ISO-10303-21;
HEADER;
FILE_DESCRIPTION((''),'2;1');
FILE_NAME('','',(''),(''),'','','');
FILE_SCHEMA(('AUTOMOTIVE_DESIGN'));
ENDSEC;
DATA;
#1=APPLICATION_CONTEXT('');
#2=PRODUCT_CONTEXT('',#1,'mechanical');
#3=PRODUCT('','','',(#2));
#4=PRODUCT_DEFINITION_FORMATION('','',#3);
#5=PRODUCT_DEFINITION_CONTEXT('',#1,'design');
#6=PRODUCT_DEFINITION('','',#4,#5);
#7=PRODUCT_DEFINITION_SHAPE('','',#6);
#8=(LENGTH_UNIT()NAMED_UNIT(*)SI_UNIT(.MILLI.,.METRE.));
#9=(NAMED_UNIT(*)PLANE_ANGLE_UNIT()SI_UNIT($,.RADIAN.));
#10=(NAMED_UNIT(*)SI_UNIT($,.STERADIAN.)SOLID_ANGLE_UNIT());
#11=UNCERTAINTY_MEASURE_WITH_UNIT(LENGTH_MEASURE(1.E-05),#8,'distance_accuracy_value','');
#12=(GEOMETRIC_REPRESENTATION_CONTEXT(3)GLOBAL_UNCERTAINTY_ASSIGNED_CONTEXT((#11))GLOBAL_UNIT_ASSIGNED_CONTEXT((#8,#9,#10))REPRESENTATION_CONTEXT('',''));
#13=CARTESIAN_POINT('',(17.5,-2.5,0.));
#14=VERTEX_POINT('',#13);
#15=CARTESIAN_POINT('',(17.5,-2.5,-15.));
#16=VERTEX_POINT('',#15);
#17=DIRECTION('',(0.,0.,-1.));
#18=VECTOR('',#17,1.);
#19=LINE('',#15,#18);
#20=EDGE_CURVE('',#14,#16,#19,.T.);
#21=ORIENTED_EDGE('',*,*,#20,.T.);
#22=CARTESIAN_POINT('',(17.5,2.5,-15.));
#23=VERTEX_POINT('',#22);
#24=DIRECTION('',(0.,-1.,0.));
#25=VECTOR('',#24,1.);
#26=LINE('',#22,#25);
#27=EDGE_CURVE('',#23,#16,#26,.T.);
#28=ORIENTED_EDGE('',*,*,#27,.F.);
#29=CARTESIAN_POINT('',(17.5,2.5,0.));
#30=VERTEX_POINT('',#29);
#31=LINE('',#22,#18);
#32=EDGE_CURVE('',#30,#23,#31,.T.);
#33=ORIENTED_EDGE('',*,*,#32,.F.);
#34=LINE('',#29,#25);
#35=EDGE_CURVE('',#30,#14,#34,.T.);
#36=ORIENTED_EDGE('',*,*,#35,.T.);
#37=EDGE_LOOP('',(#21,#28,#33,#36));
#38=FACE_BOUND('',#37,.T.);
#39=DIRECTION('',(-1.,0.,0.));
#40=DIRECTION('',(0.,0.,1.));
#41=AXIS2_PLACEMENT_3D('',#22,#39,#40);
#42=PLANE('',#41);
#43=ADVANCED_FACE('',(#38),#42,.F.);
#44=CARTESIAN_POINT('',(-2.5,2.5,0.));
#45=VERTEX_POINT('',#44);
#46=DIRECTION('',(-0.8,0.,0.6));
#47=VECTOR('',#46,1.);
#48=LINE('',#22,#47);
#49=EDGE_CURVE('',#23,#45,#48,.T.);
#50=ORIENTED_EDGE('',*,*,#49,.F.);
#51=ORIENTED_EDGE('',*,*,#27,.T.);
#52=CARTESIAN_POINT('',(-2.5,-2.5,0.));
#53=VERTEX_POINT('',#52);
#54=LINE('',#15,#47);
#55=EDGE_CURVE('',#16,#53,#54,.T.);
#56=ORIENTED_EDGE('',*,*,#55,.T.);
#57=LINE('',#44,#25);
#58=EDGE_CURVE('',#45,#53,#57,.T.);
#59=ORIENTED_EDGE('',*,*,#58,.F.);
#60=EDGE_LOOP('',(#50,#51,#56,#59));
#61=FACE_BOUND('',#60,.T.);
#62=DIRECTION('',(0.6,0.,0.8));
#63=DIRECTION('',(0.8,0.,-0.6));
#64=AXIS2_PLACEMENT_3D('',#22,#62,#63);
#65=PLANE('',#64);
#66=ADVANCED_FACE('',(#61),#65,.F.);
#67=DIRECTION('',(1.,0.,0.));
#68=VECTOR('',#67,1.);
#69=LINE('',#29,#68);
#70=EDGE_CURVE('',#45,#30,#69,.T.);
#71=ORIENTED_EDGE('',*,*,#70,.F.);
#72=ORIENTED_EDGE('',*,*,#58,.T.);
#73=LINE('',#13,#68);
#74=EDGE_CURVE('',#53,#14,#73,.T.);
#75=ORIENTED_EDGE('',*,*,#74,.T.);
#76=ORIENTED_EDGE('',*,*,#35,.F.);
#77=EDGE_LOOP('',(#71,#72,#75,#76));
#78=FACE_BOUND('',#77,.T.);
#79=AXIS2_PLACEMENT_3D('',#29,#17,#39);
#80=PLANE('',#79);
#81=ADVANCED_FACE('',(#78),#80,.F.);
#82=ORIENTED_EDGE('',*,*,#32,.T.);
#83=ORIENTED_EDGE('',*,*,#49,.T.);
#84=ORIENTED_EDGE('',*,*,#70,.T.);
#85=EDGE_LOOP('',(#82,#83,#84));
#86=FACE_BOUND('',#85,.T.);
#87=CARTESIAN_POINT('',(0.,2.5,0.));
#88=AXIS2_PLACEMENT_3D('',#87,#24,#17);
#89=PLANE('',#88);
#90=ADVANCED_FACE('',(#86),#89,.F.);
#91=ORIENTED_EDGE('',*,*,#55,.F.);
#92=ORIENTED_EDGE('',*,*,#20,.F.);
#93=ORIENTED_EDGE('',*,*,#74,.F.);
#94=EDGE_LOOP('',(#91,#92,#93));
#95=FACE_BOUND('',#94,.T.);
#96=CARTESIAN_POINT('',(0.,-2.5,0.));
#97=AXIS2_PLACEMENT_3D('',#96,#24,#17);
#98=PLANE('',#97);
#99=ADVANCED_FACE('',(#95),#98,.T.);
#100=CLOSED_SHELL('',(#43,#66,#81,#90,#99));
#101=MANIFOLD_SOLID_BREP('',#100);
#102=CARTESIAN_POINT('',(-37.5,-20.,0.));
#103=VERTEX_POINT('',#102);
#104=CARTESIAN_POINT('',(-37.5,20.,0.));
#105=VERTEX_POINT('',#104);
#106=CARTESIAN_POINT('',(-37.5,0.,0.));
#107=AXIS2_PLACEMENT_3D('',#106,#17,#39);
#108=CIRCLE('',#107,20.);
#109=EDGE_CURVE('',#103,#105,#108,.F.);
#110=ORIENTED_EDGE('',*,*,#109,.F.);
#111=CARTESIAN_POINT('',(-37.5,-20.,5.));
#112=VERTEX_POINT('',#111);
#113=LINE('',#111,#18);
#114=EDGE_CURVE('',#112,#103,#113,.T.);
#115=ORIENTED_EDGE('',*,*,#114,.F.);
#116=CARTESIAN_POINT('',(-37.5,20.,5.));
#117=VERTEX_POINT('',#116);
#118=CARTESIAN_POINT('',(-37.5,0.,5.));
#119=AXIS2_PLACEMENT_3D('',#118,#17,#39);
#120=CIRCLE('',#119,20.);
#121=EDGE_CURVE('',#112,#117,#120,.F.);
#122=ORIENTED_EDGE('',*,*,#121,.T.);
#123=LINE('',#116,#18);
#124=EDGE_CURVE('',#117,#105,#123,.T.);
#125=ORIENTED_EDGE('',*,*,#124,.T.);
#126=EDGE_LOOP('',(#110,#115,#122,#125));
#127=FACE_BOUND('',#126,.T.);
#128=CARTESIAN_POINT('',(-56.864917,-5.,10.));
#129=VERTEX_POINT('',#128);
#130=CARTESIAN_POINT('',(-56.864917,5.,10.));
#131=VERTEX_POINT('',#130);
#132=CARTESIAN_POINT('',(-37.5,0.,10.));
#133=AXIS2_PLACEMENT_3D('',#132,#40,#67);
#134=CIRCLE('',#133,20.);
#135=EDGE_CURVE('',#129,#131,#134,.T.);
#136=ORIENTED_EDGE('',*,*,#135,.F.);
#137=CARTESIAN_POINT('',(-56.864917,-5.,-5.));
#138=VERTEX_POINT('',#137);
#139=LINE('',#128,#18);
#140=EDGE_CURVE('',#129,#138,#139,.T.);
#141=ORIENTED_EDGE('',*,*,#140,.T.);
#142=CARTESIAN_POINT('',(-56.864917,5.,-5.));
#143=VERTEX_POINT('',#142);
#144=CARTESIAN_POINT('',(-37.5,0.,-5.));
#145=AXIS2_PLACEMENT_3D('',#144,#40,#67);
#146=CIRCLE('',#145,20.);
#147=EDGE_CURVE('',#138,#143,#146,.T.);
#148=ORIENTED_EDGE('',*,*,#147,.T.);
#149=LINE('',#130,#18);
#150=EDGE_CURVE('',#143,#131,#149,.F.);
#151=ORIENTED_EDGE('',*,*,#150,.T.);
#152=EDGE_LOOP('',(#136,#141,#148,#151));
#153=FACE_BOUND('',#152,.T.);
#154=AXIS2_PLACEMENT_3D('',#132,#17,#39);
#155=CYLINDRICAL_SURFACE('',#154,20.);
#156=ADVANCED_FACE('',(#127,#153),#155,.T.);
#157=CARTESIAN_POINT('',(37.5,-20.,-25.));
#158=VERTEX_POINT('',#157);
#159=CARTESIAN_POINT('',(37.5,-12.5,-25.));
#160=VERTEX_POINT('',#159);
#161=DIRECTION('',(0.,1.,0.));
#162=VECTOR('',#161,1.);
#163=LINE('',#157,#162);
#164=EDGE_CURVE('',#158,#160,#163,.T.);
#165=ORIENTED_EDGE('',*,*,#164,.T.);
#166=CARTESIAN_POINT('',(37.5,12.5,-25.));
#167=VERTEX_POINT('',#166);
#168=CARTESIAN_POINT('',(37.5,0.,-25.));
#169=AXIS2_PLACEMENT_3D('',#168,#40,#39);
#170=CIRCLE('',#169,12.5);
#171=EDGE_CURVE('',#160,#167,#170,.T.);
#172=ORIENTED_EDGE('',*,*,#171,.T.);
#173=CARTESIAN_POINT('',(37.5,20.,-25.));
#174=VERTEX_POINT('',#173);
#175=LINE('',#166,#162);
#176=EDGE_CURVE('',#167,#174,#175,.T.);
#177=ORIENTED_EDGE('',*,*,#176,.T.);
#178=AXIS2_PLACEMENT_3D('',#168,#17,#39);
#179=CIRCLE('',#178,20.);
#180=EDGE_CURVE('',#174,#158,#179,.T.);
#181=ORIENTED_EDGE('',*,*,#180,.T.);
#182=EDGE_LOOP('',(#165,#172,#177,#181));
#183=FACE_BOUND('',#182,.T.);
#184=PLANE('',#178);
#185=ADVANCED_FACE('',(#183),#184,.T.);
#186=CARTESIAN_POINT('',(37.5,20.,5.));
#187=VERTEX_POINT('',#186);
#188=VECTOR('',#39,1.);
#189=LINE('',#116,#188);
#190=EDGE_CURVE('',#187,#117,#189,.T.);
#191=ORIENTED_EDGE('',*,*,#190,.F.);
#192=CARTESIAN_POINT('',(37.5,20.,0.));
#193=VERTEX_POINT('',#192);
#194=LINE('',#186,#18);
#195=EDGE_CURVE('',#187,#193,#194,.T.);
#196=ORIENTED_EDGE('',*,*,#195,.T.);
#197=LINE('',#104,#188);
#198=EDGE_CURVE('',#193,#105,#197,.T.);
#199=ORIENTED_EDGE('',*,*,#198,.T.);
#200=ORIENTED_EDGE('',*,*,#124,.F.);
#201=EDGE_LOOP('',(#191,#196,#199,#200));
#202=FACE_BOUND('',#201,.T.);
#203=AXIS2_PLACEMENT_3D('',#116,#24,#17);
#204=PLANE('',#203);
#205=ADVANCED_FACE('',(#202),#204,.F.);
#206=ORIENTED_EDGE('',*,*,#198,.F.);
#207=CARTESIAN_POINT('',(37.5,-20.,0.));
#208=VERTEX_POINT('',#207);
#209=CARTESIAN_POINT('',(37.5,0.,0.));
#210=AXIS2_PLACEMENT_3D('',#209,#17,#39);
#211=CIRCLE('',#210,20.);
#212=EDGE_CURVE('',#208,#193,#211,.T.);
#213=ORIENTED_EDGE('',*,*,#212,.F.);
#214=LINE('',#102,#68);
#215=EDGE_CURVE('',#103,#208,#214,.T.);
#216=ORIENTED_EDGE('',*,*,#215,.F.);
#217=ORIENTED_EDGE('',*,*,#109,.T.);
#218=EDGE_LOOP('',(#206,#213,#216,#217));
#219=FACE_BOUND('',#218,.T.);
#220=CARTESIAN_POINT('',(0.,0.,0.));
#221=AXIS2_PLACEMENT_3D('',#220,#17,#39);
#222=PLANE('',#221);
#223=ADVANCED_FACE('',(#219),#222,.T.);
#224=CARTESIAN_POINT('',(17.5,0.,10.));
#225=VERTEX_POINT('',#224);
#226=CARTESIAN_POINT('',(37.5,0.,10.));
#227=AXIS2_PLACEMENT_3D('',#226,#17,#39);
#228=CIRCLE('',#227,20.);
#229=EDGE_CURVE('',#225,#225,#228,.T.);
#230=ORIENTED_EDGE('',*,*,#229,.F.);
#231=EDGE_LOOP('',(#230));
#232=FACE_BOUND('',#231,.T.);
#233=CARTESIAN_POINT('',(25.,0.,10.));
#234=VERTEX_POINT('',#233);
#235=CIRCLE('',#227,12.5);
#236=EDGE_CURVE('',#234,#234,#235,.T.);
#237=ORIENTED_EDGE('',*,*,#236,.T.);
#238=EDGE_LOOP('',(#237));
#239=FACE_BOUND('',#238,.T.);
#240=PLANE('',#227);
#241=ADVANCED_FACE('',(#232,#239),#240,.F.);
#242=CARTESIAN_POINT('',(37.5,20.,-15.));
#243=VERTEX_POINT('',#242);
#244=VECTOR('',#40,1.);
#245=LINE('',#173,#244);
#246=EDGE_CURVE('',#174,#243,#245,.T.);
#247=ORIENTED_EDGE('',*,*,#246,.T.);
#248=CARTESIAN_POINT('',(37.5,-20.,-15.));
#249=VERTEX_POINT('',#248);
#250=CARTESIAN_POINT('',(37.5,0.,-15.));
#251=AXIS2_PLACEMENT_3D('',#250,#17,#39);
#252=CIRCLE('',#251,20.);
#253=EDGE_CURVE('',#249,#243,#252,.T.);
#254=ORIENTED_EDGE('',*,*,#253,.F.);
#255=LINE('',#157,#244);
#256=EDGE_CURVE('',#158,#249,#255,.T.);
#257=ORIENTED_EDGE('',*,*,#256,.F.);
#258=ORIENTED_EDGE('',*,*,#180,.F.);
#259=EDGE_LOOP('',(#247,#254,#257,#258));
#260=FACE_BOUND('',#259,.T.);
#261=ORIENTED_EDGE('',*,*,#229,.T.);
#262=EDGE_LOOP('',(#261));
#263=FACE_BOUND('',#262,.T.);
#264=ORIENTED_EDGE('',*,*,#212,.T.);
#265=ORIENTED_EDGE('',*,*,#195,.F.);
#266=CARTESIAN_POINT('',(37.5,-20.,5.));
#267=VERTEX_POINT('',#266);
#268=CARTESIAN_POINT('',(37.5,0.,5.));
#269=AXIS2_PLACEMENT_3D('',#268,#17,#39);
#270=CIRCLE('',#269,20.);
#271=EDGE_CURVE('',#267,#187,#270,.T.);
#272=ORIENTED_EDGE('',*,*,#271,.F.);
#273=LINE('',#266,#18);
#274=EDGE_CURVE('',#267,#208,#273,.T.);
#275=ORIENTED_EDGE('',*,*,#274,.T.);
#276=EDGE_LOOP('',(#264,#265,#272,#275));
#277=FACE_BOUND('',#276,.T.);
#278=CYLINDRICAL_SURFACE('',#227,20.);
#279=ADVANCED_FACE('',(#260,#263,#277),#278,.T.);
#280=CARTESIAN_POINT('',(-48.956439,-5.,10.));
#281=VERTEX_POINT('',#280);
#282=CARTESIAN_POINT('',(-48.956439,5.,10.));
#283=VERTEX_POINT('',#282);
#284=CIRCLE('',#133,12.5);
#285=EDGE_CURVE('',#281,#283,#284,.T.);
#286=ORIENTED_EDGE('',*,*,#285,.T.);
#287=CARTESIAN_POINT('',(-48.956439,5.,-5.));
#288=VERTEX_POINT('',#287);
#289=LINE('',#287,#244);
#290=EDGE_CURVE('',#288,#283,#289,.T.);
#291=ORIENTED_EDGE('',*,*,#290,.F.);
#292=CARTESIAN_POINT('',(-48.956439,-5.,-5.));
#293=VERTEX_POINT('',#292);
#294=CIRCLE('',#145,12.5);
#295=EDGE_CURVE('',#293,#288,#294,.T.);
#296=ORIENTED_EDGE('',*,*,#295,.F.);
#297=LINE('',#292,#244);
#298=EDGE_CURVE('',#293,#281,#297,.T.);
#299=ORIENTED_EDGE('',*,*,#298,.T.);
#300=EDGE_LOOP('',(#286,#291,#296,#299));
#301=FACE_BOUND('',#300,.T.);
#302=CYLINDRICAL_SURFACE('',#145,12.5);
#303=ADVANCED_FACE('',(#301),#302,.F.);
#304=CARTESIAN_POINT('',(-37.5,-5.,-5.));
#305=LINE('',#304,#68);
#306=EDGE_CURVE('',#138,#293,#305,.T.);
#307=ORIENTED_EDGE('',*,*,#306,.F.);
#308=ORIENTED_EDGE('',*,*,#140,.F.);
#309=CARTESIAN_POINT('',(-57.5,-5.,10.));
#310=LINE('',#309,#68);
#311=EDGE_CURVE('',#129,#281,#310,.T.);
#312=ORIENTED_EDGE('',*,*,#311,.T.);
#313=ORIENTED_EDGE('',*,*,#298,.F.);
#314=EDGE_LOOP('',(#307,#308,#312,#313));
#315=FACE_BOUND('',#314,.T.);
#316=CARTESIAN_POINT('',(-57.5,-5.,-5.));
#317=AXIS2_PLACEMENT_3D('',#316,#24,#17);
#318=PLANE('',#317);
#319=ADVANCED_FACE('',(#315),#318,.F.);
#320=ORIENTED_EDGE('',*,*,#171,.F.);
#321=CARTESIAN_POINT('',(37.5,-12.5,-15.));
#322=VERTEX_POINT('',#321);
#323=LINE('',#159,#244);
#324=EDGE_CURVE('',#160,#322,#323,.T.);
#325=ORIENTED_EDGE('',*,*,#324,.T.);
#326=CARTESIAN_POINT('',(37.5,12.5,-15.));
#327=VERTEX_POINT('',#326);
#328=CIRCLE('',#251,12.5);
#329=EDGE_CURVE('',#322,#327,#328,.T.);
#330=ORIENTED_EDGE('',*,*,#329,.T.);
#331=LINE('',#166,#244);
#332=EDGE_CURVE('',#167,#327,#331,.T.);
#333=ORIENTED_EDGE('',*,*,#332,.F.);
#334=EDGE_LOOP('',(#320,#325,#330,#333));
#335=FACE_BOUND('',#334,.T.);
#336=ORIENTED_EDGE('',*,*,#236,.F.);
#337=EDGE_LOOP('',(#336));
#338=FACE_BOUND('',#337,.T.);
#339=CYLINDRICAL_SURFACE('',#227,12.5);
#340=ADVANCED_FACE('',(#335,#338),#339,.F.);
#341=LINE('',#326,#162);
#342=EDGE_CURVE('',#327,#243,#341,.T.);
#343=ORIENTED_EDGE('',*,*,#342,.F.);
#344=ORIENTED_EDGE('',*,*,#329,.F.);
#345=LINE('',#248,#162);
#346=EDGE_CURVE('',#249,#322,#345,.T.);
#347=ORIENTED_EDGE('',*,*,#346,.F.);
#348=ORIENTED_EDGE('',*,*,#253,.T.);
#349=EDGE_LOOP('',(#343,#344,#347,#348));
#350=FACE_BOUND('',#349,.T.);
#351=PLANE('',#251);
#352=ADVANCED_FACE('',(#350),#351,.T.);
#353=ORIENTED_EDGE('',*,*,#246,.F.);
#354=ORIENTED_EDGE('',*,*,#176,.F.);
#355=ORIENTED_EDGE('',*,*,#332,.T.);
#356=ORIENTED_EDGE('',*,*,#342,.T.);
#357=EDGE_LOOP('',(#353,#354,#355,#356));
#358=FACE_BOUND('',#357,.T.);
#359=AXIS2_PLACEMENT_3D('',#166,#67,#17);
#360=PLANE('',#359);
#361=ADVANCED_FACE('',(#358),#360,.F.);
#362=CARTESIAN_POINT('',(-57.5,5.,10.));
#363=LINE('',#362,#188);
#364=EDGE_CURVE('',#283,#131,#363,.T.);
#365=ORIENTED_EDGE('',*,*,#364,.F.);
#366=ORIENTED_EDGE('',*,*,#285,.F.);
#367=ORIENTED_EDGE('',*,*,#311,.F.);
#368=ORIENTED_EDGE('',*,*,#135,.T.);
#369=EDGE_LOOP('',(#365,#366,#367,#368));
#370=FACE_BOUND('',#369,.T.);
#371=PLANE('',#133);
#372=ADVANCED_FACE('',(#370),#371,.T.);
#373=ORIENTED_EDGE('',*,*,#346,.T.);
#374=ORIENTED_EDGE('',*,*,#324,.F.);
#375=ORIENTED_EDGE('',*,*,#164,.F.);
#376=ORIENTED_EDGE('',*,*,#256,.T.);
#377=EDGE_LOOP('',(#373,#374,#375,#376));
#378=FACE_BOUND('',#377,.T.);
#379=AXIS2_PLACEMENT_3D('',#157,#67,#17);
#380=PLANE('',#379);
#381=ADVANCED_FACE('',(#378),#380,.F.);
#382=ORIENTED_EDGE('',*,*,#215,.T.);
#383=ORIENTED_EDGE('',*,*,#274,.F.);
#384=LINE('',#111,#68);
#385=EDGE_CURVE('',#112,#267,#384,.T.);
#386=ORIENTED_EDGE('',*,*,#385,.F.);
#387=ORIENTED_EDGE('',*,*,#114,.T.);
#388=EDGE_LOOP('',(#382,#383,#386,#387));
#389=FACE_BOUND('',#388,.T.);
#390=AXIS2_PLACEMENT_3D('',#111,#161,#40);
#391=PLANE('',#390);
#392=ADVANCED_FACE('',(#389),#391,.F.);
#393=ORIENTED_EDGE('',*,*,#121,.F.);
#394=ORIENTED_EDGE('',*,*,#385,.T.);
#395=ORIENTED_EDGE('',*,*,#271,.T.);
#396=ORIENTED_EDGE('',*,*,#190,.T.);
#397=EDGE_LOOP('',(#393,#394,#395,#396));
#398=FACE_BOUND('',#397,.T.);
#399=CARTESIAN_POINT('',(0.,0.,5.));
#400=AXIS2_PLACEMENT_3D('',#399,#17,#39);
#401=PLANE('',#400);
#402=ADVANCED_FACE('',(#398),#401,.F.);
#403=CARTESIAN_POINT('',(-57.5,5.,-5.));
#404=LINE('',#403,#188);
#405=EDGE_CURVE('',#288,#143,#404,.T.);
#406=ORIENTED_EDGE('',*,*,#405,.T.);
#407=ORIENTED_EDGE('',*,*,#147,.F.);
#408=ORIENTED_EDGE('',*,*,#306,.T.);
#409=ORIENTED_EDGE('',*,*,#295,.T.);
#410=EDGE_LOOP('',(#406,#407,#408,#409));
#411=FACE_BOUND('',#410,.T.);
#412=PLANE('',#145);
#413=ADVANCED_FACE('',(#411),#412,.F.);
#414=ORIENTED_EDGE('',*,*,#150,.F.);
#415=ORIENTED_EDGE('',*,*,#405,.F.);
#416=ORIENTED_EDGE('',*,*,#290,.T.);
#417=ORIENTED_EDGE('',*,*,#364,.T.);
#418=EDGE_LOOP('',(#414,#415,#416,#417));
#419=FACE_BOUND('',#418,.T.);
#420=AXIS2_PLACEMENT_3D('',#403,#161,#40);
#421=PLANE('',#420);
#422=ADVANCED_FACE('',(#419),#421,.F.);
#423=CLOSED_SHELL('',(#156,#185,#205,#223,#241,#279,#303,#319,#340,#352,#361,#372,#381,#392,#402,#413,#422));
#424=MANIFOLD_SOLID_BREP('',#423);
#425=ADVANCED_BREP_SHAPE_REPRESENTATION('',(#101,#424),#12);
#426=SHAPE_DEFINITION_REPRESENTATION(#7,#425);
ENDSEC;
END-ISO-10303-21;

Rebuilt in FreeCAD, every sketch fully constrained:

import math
import FreeCAD as App
import Part
import Sketcher

doc = App.newDocument("Part")
body = doc.addObject("PartDesign::Body", "Body")

# Sketch on XY plane
sketch1 = doc.addObject("Sketcher::SketchObject", "Sketch")
body.addObject(sketch1)
sketch1.AttachmentSupport = (doc.XY_Plane, [""])
sketch1.MapMode = "FlatFace"
sketch1.addGeometry([
    Part.LineSegment(App.Vector(-38, 20, 0), App.Vector(-38, -20, 0)),
    Part.LineSegment(App.Vector(-38, -20, 0), App.Vector(38, -20, 0)),
    Part.LineSegment(App.Vector(38, -20, 0), App.Vector(38, 20, 0)),
    Part.LineSegment(App.Vector(38, 20, 0), App.Vector(-38, 20, 0)),
], False)
sketch1.addConstraint([
    Sketcher.Constraint("Coincident", 0, 2, 1, 1),
    Sketcher.Constraint("Coincident", 1, 2, 2, 1),
    Sketcher.Constraint("Coincident", 2, 2, 3, 1),
    Sketcher.Constraint("Coincident", 3, 2, 0, 1),
    Sketcher.Constraint("Vertical", 0),
    Sketcher.Constraint("Horizontal", 1),
    Sketcher.Constraint("Vertical", 2),
    Sketcher.Constraint("Horizontal", 3),
    Sketcher.Constraint("Symmetric", 0, 2, 2, 2, -1, 1),
    Sketcher.Constraint("DistanceX", 1, 1, 1, 2, 75.0),
    Sketcher.Constraint("DistanceY", 0, 2, 0, 1, 40.0),
])
pad1 = doc.addObject("PartDesign::Pad", "Pad")
body.addObject(pad1)
pad1.Profile = sketch1
pad1.Length = 5

# Sketch on XY plane
sketch2 = doc.addObject("Sketcher::SketchObject", "Sketch001")
body.addObject(sketch2)
sketch2.AttachmentSupport = (doc.XY_Plane, [""])
sketch2.MapMode = "FlatFace"
sketch2.AttachmentOffset = App.Placement(App.Vector(0, 0, 5), App.Rotation())
sketch2.addGeometry(Part.Circle(App.Vector(-38, 0, 0), App.Vector(0, 0, 1), 20), False)
sketch2.addConstraint([
    Sketcher.Constraint("PointOnObject", 0, 3, -1),
    Sketcher.Constraint("Diameter", 0, 40.0),
    Sketcher.Constraint("DistanceX", 0, 3, -1, 1, 37.5),
])
pad2 = doc.addObject("PartDesign::Pad", "Pad001")
body.addObject(pad2)
pad2.Profile = sketch2
pad2.Type = "TwoLengths"
pad2.Length = 5
pad2.Length2 = 10

# Sketch on XY plane
sketch3 = doc.addObject("Sketcher::SketchObject", "Sketch002")
body.addObject(sketch3)
sketch3.AttachmentSupport = (doc.XY_Plane, [""])
sketch3.MapMode = "FlatFace"
sketch3.AttachmentOffset = App.Placement(App.Vector(0, 0, 10), App.Rotation())
sketch3.addGeometry([
    Part.LineSegment(App.Vector(-58, 5, 0), App.Vector(-58, -5, 0)),
    Part.LineSegment(App.Vector(-58, -5, 0), App.Vector(-49, -5, 0)),
    Part.ArcOfCircle(Part.Circle(App.Vector(-38, 0, 0), App.Vector(0, 0, 1), 12), math.radians(-156), math.radians(156)),
    Part.LineSegment(App.Vector(-49, 5, 0), App.Vector(-58, 5, 0)),
], False)
sketch3.addConstraint([
    Sketcher.Constraint("Coincident", 0, 2, 1, 1),
    Sketcher.Constraint("Coincident", 1, 2, 2, 1),
    Sketcher.Constraint("Coincident", 2, 2, 3, 1),
    Sketcher.Constraint("Coincident", 3, 2, 0, 1),
    Sketcher.Constraint("Vertical", 0),
    Sketcher.Constraint("Horizontal", 1),
    Sketcher.Constraint("Horizontal", 3),
    Sketcher.Constraint("Symmetric", 1, 2, 2, 2, -1),
    Sketcher.Constraint("Radius", 2, 12.5),
    Sketcher.Constraint("DistanceY", 0, 2, 0, 1, 10.0),
    Sketcher.Constraint("DistanceX", 0, 2, 2, 3, 20.0),
    Sketcher.Constraint("DistanceX", 2, 3, -1, 1, 37.5),
])
pocket1 = doc.addObject("PartDesign::Pocket", "Pocket")
body.addObject(pocket1)
pocket1.Profile = sketch3
pocket1.Length = 15

# Sketch on XY plane
sketch4 = doc.addObject("Sketcher::SketchObject", "Sketch003")
body.addObject(sketch4)
sketch4.AttachmentSupport = (doc.XY_Plane, [""])
sketch4.MapMode = "FlatFace"
sketch4.addGeometry(Part.Circle(App.Vector(38, 0, 0), App.Vector(0, 0, 1), 20), False)
sketch4.addConstraint([
    Sketcher.Constraint("PointOnObject", 0, 3, -1),
    Sketcher.Constraint("Diameter", 0, 40.0),
    Sketcher.Constraint("DistanceX", -1, 1, 0, 3, 37.5),
])
pad3 = doc.addObject("PartDesign::Pad", "Pad002")
body.addObject(pad3)
pad3.Profile = sketch4
pad3.Type = "TwoLengths"
pad3.Length = 15
pad3.Length2 = 10
pad3.Reversed = True

# Sketch on XY plane
sketch5 = doc.addObject("Sketcher::SketchObject", "Sketch004")
body.addObject(sketch5)
sketch5.AttachmentSupport = (doc.XY_Plane, [""])
sketch5.MapMode = "FlatFace"
sketch5.AttachmentOffset = App.Placement(App.Vector(0, 0, -15), App.Rotation())
sketch5.addGeometry(Part.Circle(App.Vector(38, 0, 0), App.Vector(0, 0, 1), 12), False)
sketch5.addConstraint([
    Sketcher.Constraint("PointOnObject", 0, 3, -1),
    Sketcher.Constraint("Diameter", 0, 25.0),
    Sketcher.Constraint("DistanceX", -1, 1, 0, 3, 37.5),
])
pocket2 = doc.addObject("PartDesign::Pocket", "Pocket001")
body.addObject(pocket2)
pocket2.Profile = sketch5
pocket2.Length = 25
pocket2.Reversed = True

# Sketch on XY plane
sketch6 = doc.addObject("Sketcher::SketchObject", "Sketch005")
body.addObject(sketch6)
sketch6.AttachmentSupport = (doc.XY_Plane, [""])
sketch6.MapMode = "FlatFace"
sketch6.AttachmentOffset = App.Placement(App.Vector(0, 0, -25), App.Rotation())
sketch6.addGeometry([
    Part.LineSegment(App.Vector(38, -20, 0), App.Vector(38, -12, 0)),
    Part.ArcOfCircle(Part.Circle(App.Vector(38, 0, 0), App.Vector(0, 0, 1), 12), math.radians(-90), math.radians(90)),
    Part.LineSegment(App.Vector(38, 12, 0), App.Vector(38, 20, 0)),
    Part.ArcOfCircle(Part.Circle(App.Vector(38, 0, 0), App.Vector(0, 0, 1), 20), math.radians(-90), math.radians(90)),
], False)
sketch6.addConstraint([
    Sketcher.Constraint("Coincident", 0, 2, 1, 1),
    Sketcher.Constraint("Coincident", 1, 2, 2, 1),
    Sketcher.Constraint("Coincident", 2, 2, 3, 2),
    Sketcher.Constraint("Coincident", 3, 1, 0, 1),
    Sketcher.Constraint("Vertical", 0),
    Sketcher.Constraint("Vertical", 2),
    Sketcher.Constraint("Coincident", 3, 3, 1, 3),
    Sketcher.Constraint("Symmetric", 0, 2, 1, 2, -1),
    Sketcher.Constraint("Vertical", 3, 3, 0, 2),
    Sketcher.Constraint("Radius", 3, 20.0),
    Sketcher.Constraint("Radius", 1, 12.5),
    Sketcher.Constraint("DistanceX", -1, 1, 1, 3, 37.5),
])
pad4 = doc.addObject("PartDesign::Pad", "Pad003")
body.addObject(pad4)
pad4.Profile = sketch6
pad4.Length = 10
body2 = doc.addObject("PartDesign::Body", "Body001")

# Sketch on XZ plane
sketch7 = doc.addObject("Sketcher::SketchObject", "Sketch006")
body2.addObject(sketch7)
sketch7.AttachmentSupport = (doc.getObject("XZ_Plane001"), [""])
sketch7.MapMode = "FlatFace"
sketch7.addGeometry([
    Part.LineSegment(App.Vector(18, -15, 0), App.Vector(-2, 0, 0)),
    Part.LineSegment(App.Vector(-2, 0, 0), App.Vector(18, 0, 0)),
    Part.LineSegment(App.Vector(18, 0, 0), App.Vector(18, -15, 0)),
], False)
sketch7.addConstraint([
    Sketcher.Constraint("Coincident", 0, 2, 1, 1),
    Sketcher.Constraint("Coincident", 1, 2, 2, 1),
    Sketcher.Constraint("Coincident", 2, 2, 0, 1),
    Sketcher.Constraint("Horizontal", 1),
    Sketcher.Constraint("Vertical", 2),
    Sketcher.Constraint("PointOnObject", 0, 2, -1),
    Sketcher.Constraint("DistanceX", 1, 1, 1, 2, 20.0),
    Sketcher.Constraint("DistanceY", 2, 2, 2, 1, 15.0),
    Sketcher.Constraint("DistanceX", 0, 2, -1, 1, 2.5),
])
pad5 = doc.addObject("PartDesign::Pad", "Pad004")
body2.addObject(pad5)
pad5.Profile = sketch7
pad5.Length = 5
pad5.Midplane = True

doc.recompute()
